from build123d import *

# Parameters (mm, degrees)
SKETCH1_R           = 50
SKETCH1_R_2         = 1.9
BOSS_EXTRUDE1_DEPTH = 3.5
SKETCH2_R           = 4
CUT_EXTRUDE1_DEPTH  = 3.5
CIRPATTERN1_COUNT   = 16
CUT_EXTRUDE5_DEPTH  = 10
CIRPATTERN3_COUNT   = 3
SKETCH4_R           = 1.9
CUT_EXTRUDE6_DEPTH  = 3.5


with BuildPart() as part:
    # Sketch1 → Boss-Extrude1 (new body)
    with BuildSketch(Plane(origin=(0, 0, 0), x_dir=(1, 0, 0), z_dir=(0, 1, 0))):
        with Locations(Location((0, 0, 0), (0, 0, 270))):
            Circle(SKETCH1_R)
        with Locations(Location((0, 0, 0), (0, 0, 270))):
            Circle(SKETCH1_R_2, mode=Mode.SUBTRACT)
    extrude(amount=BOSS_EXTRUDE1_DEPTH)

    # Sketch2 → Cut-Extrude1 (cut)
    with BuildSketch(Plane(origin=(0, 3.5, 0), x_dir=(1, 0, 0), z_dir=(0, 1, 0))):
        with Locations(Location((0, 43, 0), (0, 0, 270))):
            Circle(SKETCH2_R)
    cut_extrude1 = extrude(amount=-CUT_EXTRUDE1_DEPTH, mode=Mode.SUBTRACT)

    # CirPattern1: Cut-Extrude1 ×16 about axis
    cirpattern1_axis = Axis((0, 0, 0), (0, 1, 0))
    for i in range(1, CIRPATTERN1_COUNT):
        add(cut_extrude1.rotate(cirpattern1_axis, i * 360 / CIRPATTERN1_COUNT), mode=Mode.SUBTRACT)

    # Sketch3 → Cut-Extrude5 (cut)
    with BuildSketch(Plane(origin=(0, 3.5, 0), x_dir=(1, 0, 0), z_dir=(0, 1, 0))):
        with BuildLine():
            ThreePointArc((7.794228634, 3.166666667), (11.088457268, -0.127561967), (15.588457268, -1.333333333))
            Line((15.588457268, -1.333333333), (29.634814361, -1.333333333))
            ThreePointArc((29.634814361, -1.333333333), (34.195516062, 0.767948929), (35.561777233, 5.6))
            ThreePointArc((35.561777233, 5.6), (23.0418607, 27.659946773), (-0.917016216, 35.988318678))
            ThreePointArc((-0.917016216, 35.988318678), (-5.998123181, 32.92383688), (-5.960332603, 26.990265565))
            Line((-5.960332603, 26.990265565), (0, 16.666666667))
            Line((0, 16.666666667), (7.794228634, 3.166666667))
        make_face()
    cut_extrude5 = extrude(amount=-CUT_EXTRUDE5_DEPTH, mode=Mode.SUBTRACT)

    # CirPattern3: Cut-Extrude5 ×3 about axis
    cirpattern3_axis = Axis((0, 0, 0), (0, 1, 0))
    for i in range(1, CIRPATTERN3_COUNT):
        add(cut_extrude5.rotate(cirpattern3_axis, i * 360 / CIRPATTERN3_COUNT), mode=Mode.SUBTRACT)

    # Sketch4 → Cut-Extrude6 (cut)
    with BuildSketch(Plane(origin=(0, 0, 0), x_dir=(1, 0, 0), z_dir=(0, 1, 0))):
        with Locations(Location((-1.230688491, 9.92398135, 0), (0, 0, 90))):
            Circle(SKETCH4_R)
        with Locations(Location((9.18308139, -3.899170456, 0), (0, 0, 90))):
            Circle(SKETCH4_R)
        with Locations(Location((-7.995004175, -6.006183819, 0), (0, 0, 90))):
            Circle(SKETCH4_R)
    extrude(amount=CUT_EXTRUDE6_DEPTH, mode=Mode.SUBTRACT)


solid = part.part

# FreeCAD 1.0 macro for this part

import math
import FreeCAD as App
import Part
import Sketcher
Q = App.Units.Quantity

doc = App.newDocument("Part")
body = doc.addObject("PartDesign::Body", "Body")

# Sketch on XZ plane
sketch1 = body.newObject("Sketcher::SketchObject", "Sketch")
sketch1.AttachmentSupport = (doc.getObject("XZ_Plane"), [""])
sketch1.MapMode = "FlatFace"
sketch1.addGeometry([
    Part.Circle(App.Vector(0, 0, 0), App.Vector(0, 0, 1), 50),
    Part.Circle(App.Vector(0, 0, 0), App.Vector(0, 0, 1), 1.9),
], False)
sketch1.addConstraint([
    Sketcher.Constraint("Coincident", 0, 3, -1, 1),
    Sketcher.Constraint("Coincident", 1, 3, -1, 1),
    Sketcher.Constraint("Diameter", 0, Q("100 mm")),
    Sketcher.Constraint("Diameter", 1, Q("3.8 mm")),
])
pad1 = body.newObject("PartDesign::Pad", "Pad")
pad1.Profile = sketch1
pad1.Length = 3.5
pad1.Reversed = True

# Sketch on XZ plane
sketch2 = body.newObject("Sketcher::SketchObject", "Sketch001")
sketch2.AttachmentSupport = (doc.getObject("XZ_Plane"), [""])
sketch2.MapMode = "FlatFace"
sketch2.AttachmentOffset = App.Placement(App.Vector(0, 0, -3.5), App.Rotation())
sketch2.addGeometry(Part.Circle(App.Vector(0, -43, 0), App.Vector(0, 0, 1), 4), False)
sketch2.addConstraint([
    Sketcher.Constraint("PointOnObject", 0, 3, -2),
    Sketcher.Constraint("Diameter", 0, Q("8 mm")),
    Sketcher.Constraint("DistanceY", 0, 3, -1, 1, Q("43 mm")),
])
pocket1 = body.newObject("PartDesign::Pocket", "Pocket")
pocket1.Profile = sketch2
pocket1.Length = 3.5
pocket1.Reversed = True
doc.recompute()

polarpattern = body.newObject("PartDesign::PolarPattern", "PolarPattern")
polarpattern.Originals = [pocket1]
polarpattern.Axis = (doc.getObject("Y_Axis"), [""])
polarpattern.Angle = 360
polarpattern.Occurrences = 16
body.Tip = polarpattern

# Sketch on XZ plane
sketch3 = body.newObject("Sketcher::SketchObject", "Sketch002")
sketch3.AttachmentSupport = (doc.getObject("XZ_Plane"), [""])
sketch3.MapMode = "FlatFace"
sketch3.AttachmentOffset = App.Placement(App.Vector(0, 0, -3.5), App.Rotation())
sketch3.addGeometry([
    Part.ArcOfCircle(Part.Circle(App.Vector(15.588457, -7.666667, 0), App.Vector(0, 0, 1), 9), math.radians(90), math.radians(150)),  # 0
    Part.LineSegment(App.Vector(15.588457, 1.333333, 0), App.Vector(29.634814, 1.333333, 0)),  # 1
    Part.ArcOfCircle(Part.Circle(App.Vector(29.634814, -4.666667, 0), App.Vector(0, 0, 1), 6), math.radians(-8.949018), math.radians(90)),  # 2
    Part.ArcOfCircle(Part.Circle(App.Vector(0, 0, 0), App.Vector(0, 0, 1), 36), math.radians(-91.459635), math.radians(-8.949018)),  # 3
    Part.ArcOfCircle(Part.Circle(App.Vector(-0.76418, -29.990266, 0), App.Vector(0, 0, 1), 6), math.radians(150), math.radians(268.540365)),  # 4
    Part.LineSegment(App.Vector(-5.960333, -26.990266, 0), App.Vector(0, -16.666667, 0)),  # 5
    Part.LineSegment(App.Vector(0, -16.666667, 0), App.Vector(7.794229, -3.166667, 0)),  # 6
], False)
sketch3.addConstraint([
    Sketcher.Constraint("Tangent", 0, 1, 1, 1),
    Sketcher.Constraint("Tangent", 1, 2, 2, 2),
    Sketcher.Constraint("Tangent", 2, 1, 3, 2),
    Sketcher.Constraint("Tangent", 3, 1, 4, 2),
    Sketcher.Constraint("Tangent", 4, 1, 5, 1),
    Sketcher.Constraint("Coincident", 5, 2, 6, 1),
    Sketcher.Constraint("Tangent", 6, 2, 0, 2),
    Sketcher.Constraint("Horizontal", 1),
    Sketcher.Constraint("Coincident", 3, 3, -1, 1),
    Sketcher.Constraint("Equal", 2, 4),
    Sketcher.Constraint("PointOnObject", 5, 2, -2),
    Sketcher.Constraint("Parallel", 5, 6),
    Sketcher.Constraint("Radius", 0, Q("9 mm")),
    Sketcher.Constraint("Radius", 2, Q("6 mm")),
    Sketcher.Constraint("Radius", 3, Q("36 mm")),
    Sketcher.Constraint("Angle", 5, Q("60 deg")),
    Sketcher.Constraint("DistanceY", 5, 2, 0, 3, Q("9 mm")),
    Sketcher.Constraint("DistanceY", 2, 1, -1, 1, Q("5.6 mm")),
])
pocket2 = body.newObject("PartDesign::Pocket", "Pocket001")
pocket2.Profile = sketch3
pocket2.Length = 10
pocket2.Reversed = True
doc.recompute()

polarpattern2 = body.newObject("PartDesign::PolarPattern", "PolarPattern001")
polarpattern2.Originals = [pocket2]
polarpattern2.Axis = (doc.getObject("Y_Axis"), [""])
polarpattern2.Angle = 360
polarpattern2.Occurrences = 3
body.Tip = polarpattern2

# Sketch on XZ plane
sketch4 = body.newObject("Sketcher::SketchObject", "Sketch003")
sketch4.AttachmentSupport = (doc.getObject("XZ_Plane"), [""])
sketch4.MapMode = "FlatFace"
sketch4.addGeometry([
    Part.Circle(App.Vector(-1.230688, -9.923981, 0), App.Vector(0, 0, 1), 1.9),
    Part.Circle(App.Vector(9.183081, 3.89917, 0), App.Vector(0, 0, 1), 1.9),
    Part.Circle(App.Vector(-7.995004, 6.006184, 0), App.Vector(0, 0, 1), 1.9),
], False)
sketch4.addConstraint([
    Sketcher.Constraint("Equal", 0, 1),
    Sketcher.Constraint("Equal", 1, 2),
    Sketcher.Constraint("Diameter", 0, Q("3.8 mm")),
    Sketcher.Constraint("DistanceX", 0, 3, -1, 1, Q("1.230688 mm")),
    Sketcher.Constraint("DistanceY", 0, 3, -1, 1, Q("9.923981 mm")),
    Sketcher.Constraint("DistanceX", -1, 1, 1, 3, Q("9.183081 mm")),
    Sketcher.Constraint("DistanceY", -1, 1, 1, 3, Q("3.89917 mm")),
    Sketcher.Constraint("DistanceX", 2, 3, -1, 1, Q("7.995004 mm")),
    Sketcher.Constraint("DistanceY", -1, 1, 2, 3, Q("6.006184 mm")),
])
pocket3 = body.newObject("PartDesign::Pocket", "Pocket002")
pocket3.Profile = sketch4
pocket3.Length = 3.5

doc.recompute()
